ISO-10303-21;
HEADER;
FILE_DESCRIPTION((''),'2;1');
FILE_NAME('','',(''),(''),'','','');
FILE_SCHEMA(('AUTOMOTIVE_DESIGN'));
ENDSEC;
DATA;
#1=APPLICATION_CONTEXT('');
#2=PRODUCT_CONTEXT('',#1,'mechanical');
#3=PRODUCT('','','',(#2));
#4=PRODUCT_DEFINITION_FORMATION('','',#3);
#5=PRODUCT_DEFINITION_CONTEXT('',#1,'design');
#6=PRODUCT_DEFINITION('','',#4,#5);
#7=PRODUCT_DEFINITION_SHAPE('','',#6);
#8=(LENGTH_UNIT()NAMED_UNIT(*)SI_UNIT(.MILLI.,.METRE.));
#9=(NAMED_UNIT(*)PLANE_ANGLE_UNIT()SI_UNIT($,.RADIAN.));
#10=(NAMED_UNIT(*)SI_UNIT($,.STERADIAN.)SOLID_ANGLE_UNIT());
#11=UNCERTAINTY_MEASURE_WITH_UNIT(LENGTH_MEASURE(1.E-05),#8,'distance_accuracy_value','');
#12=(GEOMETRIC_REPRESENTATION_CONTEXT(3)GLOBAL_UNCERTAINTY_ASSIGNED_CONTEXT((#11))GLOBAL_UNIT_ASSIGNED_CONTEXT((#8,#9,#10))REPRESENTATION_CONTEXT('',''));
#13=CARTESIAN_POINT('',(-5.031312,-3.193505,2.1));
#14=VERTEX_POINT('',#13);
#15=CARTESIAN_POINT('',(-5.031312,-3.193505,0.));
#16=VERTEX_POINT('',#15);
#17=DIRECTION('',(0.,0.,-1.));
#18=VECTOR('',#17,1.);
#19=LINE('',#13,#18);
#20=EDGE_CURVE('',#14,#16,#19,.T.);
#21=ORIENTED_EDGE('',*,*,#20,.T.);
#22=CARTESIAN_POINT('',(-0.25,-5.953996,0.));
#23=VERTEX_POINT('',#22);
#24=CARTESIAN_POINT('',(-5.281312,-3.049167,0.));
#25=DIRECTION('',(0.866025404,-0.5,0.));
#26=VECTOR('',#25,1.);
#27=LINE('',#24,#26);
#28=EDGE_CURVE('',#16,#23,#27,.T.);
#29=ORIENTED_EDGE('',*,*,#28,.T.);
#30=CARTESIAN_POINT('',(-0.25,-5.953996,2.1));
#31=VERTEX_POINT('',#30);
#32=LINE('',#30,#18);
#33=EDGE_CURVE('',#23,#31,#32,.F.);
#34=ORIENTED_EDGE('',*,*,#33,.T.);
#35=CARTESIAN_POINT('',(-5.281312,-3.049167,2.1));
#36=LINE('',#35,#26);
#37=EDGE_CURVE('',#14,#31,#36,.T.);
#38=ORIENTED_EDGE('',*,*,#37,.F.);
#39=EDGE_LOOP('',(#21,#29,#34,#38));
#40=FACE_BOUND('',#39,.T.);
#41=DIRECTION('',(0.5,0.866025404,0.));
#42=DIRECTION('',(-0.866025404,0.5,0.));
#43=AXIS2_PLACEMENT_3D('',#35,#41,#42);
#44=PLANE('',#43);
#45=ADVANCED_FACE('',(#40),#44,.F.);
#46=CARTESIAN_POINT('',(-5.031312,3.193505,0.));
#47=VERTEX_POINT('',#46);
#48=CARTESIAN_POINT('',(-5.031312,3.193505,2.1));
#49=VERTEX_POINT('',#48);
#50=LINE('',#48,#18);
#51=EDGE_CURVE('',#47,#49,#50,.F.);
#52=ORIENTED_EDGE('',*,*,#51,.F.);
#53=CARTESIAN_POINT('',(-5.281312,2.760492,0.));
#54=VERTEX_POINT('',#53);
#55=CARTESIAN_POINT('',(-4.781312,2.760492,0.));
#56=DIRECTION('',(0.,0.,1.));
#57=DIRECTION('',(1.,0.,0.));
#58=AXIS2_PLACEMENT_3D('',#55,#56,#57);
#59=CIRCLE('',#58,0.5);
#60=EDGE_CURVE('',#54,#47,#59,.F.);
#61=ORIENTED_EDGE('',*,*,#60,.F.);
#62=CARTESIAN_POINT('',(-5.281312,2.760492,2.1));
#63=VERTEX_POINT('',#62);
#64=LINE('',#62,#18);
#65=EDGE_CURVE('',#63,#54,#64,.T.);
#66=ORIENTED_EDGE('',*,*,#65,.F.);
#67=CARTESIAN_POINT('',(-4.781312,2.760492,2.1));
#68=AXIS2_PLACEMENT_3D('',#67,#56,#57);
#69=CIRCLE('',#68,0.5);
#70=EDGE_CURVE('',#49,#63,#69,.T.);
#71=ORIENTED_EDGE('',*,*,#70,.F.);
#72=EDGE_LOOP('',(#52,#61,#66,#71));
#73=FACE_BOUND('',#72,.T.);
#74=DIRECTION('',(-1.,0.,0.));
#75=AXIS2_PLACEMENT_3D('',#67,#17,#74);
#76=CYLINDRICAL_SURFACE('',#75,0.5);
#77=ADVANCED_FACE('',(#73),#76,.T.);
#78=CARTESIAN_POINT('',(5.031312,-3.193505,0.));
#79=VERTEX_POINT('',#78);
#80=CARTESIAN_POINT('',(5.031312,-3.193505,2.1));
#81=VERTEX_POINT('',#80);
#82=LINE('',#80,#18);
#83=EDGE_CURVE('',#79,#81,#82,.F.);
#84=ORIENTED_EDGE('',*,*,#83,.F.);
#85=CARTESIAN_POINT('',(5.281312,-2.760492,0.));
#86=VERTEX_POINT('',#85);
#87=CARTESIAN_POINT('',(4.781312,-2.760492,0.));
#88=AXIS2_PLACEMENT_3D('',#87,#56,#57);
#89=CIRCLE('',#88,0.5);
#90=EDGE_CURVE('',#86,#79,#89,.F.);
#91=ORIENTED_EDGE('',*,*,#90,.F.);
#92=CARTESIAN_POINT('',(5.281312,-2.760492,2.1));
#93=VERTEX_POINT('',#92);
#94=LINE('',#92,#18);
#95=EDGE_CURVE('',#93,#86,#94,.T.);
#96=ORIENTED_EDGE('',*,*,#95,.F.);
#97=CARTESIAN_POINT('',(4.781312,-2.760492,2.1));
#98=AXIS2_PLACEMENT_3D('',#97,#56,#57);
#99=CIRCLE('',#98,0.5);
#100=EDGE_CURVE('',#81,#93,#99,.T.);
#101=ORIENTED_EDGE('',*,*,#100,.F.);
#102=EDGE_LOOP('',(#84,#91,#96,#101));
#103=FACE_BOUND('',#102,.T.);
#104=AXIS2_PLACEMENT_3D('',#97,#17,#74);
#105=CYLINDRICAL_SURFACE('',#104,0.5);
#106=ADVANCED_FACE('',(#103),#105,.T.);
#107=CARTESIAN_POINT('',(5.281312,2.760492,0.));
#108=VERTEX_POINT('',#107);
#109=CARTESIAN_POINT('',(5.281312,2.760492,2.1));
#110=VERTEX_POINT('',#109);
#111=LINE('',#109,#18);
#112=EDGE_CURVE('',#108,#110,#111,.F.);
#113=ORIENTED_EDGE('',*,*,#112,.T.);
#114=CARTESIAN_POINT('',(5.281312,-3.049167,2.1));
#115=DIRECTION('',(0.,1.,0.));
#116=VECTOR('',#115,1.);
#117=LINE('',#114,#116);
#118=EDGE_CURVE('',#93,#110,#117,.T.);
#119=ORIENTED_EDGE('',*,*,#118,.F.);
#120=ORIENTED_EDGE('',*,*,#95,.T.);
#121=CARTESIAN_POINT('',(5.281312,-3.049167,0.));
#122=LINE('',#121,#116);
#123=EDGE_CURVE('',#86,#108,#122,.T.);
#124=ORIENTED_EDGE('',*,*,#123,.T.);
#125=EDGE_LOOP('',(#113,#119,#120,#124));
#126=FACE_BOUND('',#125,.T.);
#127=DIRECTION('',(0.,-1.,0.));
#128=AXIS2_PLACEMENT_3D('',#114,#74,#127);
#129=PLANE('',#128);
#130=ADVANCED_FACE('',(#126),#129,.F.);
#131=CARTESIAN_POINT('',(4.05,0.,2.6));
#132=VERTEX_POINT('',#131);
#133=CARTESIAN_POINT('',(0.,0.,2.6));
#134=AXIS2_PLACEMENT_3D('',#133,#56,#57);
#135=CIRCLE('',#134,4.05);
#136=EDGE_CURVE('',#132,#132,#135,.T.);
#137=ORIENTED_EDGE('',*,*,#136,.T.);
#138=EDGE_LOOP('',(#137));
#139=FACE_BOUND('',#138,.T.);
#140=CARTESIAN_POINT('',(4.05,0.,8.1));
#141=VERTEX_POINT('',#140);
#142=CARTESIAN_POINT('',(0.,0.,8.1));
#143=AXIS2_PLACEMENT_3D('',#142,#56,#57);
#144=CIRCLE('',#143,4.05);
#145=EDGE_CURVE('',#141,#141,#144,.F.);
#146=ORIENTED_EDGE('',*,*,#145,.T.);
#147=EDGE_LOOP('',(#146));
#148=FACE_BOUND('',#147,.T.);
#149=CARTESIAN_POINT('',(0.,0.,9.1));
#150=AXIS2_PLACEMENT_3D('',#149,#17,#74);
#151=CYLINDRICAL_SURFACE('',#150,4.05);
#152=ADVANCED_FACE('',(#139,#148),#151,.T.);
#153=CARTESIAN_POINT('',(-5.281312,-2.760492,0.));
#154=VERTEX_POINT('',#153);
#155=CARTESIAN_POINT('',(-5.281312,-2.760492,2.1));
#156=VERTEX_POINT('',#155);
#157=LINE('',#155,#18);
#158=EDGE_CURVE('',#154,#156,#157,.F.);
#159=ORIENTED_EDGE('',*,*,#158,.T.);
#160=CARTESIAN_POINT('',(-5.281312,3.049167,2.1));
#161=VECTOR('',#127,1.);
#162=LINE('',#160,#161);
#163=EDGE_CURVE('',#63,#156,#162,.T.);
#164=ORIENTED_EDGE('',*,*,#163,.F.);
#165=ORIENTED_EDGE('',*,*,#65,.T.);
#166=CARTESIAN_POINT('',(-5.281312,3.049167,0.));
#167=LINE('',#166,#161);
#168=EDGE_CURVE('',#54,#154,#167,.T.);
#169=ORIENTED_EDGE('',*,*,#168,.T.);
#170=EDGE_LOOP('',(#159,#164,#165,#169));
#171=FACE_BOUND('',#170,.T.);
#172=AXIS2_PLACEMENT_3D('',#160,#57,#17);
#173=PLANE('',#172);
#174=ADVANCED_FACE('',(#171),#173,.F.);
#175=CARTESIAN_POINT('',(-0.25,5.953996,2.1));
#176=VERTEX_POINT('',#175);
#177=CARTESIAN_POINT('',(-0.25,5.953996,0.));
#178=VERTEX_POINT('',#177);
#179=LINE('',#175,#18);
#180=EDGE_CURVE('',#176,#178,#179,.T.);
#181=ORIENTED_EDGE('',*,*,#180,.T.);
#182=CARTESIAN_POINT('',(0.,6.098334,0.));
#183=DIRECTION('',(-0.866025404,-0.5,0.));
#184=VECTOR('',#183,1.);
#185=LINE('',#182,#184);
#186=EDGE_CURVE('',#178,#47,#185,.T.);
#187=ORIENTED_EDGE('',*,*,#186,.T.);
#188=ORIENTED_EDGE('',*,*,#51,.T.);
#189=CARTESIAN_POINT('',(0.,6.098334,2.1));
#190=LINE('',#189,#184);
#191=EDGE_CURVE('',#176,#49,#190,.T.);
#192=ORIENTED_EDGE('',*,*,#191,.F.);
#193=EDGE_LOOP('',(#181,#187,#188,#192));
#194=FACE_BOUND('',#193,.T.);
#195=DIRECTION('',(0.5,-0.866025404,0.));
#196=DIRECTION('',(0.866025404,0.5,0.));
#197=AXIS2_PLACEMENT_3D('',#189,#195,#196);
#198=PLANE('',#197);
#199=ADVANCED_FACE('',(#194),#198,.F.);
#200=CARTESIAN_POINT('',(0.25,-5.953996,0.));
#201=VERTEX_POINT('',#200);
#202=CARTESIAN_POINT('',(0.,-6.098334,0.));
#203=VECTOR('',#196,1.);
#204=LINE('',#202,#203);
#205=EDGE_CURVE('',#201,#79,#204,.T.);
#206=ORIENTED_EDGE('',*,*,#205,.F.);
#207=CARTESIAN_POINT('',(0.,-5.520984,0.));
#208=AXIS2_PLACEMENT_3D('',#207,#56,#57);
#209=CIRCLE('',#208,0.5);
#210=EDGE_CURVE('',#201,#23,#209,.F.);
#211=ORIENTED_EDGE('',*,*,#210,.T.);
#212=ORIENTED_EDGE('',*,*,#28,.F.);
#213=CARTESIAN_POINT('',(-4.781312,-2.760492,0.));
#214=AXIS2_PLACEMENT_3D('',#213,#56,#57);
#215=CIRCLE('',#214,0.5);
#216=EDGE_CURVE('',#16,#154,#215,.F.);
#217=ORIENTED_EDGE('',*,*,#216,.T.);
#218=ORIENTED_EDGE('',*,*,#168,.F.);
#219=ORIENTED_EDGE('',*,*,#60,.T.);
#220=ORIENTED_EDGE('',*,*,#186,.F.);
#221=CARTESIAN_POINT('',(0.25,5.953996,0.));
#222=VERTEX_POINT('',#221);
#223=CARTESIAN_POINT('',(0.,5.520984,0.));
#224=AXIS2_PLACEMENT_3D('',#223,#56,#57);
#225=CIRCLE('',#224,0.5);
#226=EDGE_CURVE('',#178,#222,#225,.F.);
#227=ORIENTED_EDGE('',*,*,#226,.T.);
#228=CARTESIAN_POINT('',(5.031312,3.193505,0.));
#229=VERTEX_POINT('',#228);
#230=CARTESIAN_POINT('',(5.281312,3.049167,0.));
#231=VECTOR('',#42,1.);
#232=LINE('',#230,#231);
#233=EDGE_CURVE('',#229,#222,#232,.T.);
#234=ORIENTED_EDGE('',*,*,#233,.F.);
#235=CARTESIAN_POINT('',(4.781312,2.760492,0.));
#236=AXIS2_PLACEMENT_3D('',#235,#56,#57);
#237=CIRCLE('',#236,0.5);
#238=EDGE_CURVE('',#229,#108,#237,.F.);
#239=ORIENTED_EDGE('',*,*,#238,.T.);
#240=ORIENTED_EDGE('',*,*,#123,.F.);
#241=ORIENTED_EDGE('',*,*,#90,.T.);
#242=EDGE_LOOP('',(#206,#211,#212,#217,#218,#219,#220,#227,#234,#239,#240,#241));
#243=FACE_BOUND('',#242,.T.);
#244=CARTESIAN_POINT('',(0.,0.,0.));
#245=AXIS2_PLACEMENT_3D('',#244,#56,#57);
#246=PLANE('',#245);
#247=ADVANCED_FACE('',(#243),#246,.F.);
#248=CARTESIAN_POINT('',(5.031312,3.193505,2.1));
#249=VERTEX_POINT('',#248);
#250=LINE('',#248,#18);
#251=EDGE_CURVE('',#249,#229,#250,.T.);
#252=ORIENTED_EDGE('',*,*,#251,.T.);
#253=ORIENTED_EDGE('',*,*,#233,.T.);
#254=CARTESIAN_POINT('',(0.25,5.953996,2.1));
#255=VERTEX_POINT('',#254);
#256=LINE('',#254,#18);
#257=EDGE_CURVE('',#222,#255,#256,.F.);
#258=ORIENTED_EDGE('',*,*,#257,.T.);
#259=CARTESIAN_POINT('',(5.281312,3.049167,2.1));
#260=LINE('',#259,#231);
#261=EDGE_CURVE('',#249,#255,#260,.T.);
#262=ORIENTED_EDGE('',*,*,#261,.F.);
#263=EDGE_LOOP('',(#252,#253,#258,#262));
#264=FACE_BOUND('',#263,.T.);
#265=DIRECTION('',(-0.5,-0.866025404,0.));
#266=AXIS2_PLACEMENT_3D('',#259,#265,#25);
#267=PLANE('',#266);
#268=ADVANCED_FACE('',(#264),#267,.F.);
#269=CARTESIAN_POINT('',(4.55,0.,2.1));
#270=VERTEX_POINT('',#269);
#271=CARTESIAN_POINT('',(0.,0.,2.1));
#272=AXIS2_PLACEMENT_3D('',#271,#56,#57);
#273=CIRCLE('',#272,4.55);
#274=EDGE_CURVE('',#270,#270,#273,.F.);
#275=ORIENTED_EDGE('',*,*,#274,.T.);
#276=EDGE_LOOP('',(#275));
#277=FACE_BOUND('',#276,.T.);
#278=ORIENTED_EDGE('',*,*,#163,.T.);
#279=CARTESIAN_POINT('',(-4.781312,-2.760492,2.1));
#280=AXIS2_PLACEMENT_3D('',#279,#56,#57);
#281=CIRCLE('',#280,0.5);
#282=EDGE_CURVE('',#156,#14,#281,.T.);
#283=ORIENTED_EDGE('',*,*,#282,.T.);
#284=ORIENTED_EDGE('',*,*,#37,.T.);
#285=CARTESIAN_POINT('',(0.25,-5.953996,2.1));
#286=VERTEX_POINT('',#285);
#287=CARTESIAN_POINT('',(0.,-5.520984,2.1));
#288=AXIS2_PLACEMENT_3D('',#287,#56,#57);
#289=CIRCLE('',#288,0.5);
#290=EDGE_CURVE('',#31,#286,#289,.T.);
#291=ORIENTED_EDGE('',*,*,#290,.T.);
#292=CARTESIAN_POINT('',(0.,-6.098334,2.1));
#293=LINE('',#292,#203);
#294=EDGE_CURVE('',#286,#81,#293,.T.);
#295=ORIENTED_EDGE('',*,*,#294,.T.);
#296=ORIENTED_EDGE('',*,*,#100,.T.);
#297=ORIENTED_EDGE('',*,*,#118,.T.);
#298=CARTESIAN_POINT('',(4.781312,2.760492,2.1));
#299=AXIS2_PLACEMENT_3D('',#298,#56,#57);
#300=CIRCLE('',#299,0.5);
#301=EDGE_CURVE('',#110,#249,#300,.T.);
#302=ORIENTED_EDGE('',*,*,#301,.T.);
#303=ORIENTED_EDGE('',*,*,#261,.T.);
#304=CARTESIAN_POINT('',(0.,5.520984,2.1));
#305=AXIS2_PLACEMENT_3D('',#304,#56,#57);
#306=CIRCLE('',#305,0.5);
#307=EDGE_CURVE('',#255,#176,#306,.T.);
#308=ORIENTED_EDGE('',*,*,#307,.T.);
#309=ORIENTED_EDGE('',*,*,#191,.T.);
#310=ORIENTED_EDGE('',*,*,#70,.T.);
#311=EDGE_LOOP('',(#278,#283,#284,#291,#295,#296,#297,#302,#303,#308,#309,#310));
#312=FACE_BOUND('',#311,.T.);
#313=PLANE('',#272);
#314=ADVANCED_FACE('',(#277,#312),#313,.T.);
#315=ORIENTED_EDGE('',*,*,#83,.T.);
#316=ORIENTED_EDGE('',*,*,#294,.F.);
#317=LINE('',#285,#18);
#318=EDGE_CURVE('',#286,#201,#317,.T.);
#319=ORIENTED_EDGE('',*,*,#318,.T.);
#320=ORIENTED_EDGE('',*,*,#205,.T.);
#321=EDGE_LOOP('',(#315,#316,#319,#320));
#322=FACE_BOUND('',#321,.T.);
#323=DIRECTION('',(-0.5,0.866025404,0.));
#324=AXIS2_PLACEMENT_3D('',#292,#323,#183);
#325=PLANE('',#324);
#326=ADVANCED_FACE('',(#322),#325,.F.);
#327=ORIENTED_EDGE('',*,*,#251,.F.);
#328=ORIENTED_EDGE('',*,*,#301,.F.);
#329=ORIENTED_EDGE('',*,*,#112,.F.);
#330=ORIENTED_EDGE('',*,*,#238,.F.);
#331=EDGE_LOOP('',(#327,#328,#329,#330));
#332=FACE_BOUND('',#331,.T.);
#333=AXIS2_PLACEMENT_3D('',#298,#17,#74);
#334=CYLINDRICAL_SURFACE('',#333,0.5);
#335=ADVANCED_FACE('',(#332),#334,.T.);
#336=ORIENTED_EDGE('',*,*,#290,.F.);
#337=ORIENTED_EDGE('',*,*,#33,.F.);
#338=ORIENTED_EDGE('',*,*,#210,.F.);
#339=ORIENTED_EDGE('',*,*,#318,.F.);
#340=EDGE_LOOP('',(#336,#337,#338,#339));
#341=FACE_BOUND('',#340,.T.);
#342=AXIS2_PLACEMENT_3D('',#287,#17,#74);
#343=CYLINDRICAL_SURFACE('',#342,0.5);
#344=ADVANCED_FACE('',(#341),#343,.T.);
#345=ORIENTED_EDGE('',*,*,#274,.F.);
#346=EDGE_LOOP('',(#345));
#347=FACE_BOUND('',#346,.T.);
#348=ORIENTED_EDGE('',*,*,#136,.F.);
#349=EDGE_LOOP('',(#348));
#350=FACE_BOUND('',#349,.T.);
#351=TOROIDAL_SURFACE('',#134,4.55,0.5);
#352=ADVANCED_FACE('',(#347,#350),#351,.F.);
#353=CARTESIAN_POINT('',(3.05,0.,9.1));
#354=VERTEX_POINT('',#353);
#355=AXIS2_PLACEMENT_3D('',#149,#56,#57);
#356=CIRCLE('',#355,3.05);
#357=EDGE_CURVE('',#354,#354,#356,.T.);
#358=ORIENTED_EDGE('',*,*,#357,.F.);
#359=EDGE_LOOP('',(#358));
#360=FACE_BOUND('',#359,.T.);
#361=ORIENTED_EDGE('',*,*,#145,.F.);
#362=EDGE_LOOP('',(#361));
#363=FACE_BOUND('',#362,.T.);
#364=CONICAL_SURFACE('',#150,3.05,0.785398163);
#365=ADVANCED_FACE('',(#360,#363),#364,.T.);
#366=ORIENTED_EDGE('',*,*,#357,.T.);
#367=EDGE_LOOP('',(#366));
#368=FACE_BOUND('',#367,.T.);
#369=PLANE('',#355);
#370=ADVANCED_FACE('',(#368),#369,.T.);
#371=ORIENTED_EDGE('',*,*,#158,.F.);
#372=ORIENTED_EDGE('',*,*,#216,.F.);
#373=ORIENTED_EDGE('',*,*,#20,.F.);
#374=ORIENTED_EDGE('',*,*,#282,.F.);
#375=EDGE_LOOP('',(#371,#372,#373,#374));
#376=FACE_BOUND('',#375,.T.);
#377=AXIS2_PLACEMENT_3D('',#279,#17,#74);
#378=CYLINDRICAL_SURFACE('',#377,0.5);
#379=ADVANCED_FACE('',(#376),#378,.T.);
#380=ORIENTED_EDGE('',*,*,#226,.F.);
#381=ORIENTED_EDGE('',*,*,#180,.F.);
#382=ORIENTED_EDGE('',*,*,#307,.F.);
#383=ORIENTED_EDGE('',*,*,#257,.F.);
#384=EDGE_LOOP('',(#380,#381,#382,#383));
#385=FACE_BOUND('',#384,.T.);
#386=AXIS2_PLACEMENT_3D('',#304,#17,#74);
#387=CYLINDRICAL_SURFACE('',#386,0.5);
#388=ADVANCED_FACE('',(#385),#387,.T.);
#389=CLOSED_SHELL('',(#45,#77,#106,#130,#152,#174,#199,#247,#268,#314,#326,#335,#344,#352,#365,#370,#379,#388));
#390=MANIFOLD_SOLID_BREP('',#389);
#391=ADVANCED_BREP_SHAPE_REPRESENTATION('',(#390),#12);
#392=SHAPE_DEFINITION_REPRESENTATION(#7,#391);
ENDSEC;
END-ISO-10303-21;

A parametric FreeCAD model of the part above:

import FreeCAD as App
import Part
import Sketcher
from FreeCAD import Vector
Q = App.Units.Quantity


def edges_at(feature, points):
    """Names of the edges that pass closest to the given points."""
    edges = feature.Shape.Edges
    near = lambda p: min(range(len(edges)), key=lambda i: edges[i].distToShape(Part.Vertex(*p))[0])
    return sorted({f"Edge{near(p) + 1}" for p in points})

doc = App.newDocument("Part")
body = doc.addObject("PartDesign::Body", "Body")

# Sketch on XY plane
sketch1 = body.newObject("Sketcher::SketchObject", "Sketch")
sketch1.AttachmentSupport = (doc.getObject("XY_Plane"), [""])
sketch1.MapMode = "FlatFace"
sketch1.addGeometry(Part.LineSegment(Vector(5, 3, 0), Vector(0, 6, 0)), False)
sketch1.addGeometry(Part.LineSegment(Vector(0, 6, 0), Vector(-5, 3, 0)), False)
sketch1.addGeometry(Part.LineSegment(Vector(-5, 3, 0), Vector(-5, -3, 0)), False)
sketch1.addGeometry(Part.LineSegment(Vector(-5, -3, 0), Vector(0, -6, 0)), False)
sketch1.addGeometry(Part.LineSegment(Vector(0, -6, 0), Vector(5, -3, 0)), False)
sketch1.addGeometry(Part.LineSegment(Vector(5, -3, 0), Vector(5, 3, 0)), False)
sketch1.addConstraint(Sketcher.Constraint("Coincident", 0, 2, 1, 1))
sketch1.addConstraint(Sketcher.Constraint("Coincident", 1, 2, 2, 1))
sketch1.addConstraint(Sketcher.Constraint("Coincident", 2, 2, 3, 1))
sketch1.addConstraint(Sketcher.Constraint("Coincident", 3, 2, 4, 1))
sketch1.addConstraint(Sketcher.Constraint("Coincident", 4, 2, 5, 1))
sketch1.addConstraint(Sketcher.Constraint("Coincident", 5, 2, 0, 1))
sketch1.addConstraint(Sketcher.Constraint("Vertical", 2))
sketch1.addConstraint(Sketcher.Constraint("Vertical", 5))
sketch1.addConstraint(Sketcher.Constraint("Symmetric", 0, 2, 3, 2, -1, 1))
sketch1.addConstraint(Sketcher.Constraint("Symmetric", 1, 2, 4, 2, -1, 1))
sketch1.addConstraint(Sketcher.Constraint("PointOnObject", 0, 2, -2))
sketch1.addConstraint(Sketcher.Constraint("Parallel", 0, 3))
sketch1.addConstraint(Sketcher.Constraint("Horizontal", 2, 2, 4, 2))
sketch1.addConstraint(Sketcher.Constraint("Angle", 0, Q("150 deg")))
sketch1.addConstraint(Sketcher.Constraint("DistanceY", 2, 2, 0, 2, Q("9.147501 mm")))
sketch1.addConstraint(Sketcher.Constraint("DistanceY", 2, 2, 2, 1, Q("6.098334 mm")))
pad1 = body.newObject("PartDesign::Pad", "Pad")
pad1.Profile = sketch1
pad1.Length = 2.1

# Sketch on XY plane
sketch2 = body.newObject("Sketcher::SketchObject", "Sketch001")
sketch2.AttachmentSupport = (doc.getObject("XY_Plane"), [""])
sketch2.MapMode = "FlatFace"
sketch2.AttachmentOffset = App.Placement(Vector(0, 0, 2.1), App.Rotation())
sketch2.addGeometry(Part.Circle(Vector(0, 0, 0), Vector(0, 0, 1), 4), False)
sketch2.addConstraint(Sketcher.Constraint("Coincident", 0, 3, -1, 1))
sketch2.addConstraint(Sketcher.Constraint("Diameter", 0, Q("8.1 mm")))
pad2 = body.newObject("PartDesign::Pad", "Pad001")
pad2.Profile = sketch2
pad2.Length = 7
doc.recompute()

fillet = body.newObject("PartDesign::Fillet", "Fillet")
fillet.Base = (pad2, edges_at(pad2, [
    (5.281, -3.049, 1.05),
    (0, -6.098, 1.05),
    (-5.281, -3.049, 1.05),
    (-5.281, 3.049, 1.05),
    (0, 6.098, 1.05),
    (5.281, 3.049, 1.05),
    (-4.05, 0, 2.1),
]))
fillet.Radius = 0.5
doc.recompute()

chamfer = body.newObject("PartDesign::Chamfer", "Chamfer")
chamfer.Base = (fillet, edges_at(fillet, [(-4.05, 0, 9.1)]))
chamfer.Size = 1

doc.recompute()
